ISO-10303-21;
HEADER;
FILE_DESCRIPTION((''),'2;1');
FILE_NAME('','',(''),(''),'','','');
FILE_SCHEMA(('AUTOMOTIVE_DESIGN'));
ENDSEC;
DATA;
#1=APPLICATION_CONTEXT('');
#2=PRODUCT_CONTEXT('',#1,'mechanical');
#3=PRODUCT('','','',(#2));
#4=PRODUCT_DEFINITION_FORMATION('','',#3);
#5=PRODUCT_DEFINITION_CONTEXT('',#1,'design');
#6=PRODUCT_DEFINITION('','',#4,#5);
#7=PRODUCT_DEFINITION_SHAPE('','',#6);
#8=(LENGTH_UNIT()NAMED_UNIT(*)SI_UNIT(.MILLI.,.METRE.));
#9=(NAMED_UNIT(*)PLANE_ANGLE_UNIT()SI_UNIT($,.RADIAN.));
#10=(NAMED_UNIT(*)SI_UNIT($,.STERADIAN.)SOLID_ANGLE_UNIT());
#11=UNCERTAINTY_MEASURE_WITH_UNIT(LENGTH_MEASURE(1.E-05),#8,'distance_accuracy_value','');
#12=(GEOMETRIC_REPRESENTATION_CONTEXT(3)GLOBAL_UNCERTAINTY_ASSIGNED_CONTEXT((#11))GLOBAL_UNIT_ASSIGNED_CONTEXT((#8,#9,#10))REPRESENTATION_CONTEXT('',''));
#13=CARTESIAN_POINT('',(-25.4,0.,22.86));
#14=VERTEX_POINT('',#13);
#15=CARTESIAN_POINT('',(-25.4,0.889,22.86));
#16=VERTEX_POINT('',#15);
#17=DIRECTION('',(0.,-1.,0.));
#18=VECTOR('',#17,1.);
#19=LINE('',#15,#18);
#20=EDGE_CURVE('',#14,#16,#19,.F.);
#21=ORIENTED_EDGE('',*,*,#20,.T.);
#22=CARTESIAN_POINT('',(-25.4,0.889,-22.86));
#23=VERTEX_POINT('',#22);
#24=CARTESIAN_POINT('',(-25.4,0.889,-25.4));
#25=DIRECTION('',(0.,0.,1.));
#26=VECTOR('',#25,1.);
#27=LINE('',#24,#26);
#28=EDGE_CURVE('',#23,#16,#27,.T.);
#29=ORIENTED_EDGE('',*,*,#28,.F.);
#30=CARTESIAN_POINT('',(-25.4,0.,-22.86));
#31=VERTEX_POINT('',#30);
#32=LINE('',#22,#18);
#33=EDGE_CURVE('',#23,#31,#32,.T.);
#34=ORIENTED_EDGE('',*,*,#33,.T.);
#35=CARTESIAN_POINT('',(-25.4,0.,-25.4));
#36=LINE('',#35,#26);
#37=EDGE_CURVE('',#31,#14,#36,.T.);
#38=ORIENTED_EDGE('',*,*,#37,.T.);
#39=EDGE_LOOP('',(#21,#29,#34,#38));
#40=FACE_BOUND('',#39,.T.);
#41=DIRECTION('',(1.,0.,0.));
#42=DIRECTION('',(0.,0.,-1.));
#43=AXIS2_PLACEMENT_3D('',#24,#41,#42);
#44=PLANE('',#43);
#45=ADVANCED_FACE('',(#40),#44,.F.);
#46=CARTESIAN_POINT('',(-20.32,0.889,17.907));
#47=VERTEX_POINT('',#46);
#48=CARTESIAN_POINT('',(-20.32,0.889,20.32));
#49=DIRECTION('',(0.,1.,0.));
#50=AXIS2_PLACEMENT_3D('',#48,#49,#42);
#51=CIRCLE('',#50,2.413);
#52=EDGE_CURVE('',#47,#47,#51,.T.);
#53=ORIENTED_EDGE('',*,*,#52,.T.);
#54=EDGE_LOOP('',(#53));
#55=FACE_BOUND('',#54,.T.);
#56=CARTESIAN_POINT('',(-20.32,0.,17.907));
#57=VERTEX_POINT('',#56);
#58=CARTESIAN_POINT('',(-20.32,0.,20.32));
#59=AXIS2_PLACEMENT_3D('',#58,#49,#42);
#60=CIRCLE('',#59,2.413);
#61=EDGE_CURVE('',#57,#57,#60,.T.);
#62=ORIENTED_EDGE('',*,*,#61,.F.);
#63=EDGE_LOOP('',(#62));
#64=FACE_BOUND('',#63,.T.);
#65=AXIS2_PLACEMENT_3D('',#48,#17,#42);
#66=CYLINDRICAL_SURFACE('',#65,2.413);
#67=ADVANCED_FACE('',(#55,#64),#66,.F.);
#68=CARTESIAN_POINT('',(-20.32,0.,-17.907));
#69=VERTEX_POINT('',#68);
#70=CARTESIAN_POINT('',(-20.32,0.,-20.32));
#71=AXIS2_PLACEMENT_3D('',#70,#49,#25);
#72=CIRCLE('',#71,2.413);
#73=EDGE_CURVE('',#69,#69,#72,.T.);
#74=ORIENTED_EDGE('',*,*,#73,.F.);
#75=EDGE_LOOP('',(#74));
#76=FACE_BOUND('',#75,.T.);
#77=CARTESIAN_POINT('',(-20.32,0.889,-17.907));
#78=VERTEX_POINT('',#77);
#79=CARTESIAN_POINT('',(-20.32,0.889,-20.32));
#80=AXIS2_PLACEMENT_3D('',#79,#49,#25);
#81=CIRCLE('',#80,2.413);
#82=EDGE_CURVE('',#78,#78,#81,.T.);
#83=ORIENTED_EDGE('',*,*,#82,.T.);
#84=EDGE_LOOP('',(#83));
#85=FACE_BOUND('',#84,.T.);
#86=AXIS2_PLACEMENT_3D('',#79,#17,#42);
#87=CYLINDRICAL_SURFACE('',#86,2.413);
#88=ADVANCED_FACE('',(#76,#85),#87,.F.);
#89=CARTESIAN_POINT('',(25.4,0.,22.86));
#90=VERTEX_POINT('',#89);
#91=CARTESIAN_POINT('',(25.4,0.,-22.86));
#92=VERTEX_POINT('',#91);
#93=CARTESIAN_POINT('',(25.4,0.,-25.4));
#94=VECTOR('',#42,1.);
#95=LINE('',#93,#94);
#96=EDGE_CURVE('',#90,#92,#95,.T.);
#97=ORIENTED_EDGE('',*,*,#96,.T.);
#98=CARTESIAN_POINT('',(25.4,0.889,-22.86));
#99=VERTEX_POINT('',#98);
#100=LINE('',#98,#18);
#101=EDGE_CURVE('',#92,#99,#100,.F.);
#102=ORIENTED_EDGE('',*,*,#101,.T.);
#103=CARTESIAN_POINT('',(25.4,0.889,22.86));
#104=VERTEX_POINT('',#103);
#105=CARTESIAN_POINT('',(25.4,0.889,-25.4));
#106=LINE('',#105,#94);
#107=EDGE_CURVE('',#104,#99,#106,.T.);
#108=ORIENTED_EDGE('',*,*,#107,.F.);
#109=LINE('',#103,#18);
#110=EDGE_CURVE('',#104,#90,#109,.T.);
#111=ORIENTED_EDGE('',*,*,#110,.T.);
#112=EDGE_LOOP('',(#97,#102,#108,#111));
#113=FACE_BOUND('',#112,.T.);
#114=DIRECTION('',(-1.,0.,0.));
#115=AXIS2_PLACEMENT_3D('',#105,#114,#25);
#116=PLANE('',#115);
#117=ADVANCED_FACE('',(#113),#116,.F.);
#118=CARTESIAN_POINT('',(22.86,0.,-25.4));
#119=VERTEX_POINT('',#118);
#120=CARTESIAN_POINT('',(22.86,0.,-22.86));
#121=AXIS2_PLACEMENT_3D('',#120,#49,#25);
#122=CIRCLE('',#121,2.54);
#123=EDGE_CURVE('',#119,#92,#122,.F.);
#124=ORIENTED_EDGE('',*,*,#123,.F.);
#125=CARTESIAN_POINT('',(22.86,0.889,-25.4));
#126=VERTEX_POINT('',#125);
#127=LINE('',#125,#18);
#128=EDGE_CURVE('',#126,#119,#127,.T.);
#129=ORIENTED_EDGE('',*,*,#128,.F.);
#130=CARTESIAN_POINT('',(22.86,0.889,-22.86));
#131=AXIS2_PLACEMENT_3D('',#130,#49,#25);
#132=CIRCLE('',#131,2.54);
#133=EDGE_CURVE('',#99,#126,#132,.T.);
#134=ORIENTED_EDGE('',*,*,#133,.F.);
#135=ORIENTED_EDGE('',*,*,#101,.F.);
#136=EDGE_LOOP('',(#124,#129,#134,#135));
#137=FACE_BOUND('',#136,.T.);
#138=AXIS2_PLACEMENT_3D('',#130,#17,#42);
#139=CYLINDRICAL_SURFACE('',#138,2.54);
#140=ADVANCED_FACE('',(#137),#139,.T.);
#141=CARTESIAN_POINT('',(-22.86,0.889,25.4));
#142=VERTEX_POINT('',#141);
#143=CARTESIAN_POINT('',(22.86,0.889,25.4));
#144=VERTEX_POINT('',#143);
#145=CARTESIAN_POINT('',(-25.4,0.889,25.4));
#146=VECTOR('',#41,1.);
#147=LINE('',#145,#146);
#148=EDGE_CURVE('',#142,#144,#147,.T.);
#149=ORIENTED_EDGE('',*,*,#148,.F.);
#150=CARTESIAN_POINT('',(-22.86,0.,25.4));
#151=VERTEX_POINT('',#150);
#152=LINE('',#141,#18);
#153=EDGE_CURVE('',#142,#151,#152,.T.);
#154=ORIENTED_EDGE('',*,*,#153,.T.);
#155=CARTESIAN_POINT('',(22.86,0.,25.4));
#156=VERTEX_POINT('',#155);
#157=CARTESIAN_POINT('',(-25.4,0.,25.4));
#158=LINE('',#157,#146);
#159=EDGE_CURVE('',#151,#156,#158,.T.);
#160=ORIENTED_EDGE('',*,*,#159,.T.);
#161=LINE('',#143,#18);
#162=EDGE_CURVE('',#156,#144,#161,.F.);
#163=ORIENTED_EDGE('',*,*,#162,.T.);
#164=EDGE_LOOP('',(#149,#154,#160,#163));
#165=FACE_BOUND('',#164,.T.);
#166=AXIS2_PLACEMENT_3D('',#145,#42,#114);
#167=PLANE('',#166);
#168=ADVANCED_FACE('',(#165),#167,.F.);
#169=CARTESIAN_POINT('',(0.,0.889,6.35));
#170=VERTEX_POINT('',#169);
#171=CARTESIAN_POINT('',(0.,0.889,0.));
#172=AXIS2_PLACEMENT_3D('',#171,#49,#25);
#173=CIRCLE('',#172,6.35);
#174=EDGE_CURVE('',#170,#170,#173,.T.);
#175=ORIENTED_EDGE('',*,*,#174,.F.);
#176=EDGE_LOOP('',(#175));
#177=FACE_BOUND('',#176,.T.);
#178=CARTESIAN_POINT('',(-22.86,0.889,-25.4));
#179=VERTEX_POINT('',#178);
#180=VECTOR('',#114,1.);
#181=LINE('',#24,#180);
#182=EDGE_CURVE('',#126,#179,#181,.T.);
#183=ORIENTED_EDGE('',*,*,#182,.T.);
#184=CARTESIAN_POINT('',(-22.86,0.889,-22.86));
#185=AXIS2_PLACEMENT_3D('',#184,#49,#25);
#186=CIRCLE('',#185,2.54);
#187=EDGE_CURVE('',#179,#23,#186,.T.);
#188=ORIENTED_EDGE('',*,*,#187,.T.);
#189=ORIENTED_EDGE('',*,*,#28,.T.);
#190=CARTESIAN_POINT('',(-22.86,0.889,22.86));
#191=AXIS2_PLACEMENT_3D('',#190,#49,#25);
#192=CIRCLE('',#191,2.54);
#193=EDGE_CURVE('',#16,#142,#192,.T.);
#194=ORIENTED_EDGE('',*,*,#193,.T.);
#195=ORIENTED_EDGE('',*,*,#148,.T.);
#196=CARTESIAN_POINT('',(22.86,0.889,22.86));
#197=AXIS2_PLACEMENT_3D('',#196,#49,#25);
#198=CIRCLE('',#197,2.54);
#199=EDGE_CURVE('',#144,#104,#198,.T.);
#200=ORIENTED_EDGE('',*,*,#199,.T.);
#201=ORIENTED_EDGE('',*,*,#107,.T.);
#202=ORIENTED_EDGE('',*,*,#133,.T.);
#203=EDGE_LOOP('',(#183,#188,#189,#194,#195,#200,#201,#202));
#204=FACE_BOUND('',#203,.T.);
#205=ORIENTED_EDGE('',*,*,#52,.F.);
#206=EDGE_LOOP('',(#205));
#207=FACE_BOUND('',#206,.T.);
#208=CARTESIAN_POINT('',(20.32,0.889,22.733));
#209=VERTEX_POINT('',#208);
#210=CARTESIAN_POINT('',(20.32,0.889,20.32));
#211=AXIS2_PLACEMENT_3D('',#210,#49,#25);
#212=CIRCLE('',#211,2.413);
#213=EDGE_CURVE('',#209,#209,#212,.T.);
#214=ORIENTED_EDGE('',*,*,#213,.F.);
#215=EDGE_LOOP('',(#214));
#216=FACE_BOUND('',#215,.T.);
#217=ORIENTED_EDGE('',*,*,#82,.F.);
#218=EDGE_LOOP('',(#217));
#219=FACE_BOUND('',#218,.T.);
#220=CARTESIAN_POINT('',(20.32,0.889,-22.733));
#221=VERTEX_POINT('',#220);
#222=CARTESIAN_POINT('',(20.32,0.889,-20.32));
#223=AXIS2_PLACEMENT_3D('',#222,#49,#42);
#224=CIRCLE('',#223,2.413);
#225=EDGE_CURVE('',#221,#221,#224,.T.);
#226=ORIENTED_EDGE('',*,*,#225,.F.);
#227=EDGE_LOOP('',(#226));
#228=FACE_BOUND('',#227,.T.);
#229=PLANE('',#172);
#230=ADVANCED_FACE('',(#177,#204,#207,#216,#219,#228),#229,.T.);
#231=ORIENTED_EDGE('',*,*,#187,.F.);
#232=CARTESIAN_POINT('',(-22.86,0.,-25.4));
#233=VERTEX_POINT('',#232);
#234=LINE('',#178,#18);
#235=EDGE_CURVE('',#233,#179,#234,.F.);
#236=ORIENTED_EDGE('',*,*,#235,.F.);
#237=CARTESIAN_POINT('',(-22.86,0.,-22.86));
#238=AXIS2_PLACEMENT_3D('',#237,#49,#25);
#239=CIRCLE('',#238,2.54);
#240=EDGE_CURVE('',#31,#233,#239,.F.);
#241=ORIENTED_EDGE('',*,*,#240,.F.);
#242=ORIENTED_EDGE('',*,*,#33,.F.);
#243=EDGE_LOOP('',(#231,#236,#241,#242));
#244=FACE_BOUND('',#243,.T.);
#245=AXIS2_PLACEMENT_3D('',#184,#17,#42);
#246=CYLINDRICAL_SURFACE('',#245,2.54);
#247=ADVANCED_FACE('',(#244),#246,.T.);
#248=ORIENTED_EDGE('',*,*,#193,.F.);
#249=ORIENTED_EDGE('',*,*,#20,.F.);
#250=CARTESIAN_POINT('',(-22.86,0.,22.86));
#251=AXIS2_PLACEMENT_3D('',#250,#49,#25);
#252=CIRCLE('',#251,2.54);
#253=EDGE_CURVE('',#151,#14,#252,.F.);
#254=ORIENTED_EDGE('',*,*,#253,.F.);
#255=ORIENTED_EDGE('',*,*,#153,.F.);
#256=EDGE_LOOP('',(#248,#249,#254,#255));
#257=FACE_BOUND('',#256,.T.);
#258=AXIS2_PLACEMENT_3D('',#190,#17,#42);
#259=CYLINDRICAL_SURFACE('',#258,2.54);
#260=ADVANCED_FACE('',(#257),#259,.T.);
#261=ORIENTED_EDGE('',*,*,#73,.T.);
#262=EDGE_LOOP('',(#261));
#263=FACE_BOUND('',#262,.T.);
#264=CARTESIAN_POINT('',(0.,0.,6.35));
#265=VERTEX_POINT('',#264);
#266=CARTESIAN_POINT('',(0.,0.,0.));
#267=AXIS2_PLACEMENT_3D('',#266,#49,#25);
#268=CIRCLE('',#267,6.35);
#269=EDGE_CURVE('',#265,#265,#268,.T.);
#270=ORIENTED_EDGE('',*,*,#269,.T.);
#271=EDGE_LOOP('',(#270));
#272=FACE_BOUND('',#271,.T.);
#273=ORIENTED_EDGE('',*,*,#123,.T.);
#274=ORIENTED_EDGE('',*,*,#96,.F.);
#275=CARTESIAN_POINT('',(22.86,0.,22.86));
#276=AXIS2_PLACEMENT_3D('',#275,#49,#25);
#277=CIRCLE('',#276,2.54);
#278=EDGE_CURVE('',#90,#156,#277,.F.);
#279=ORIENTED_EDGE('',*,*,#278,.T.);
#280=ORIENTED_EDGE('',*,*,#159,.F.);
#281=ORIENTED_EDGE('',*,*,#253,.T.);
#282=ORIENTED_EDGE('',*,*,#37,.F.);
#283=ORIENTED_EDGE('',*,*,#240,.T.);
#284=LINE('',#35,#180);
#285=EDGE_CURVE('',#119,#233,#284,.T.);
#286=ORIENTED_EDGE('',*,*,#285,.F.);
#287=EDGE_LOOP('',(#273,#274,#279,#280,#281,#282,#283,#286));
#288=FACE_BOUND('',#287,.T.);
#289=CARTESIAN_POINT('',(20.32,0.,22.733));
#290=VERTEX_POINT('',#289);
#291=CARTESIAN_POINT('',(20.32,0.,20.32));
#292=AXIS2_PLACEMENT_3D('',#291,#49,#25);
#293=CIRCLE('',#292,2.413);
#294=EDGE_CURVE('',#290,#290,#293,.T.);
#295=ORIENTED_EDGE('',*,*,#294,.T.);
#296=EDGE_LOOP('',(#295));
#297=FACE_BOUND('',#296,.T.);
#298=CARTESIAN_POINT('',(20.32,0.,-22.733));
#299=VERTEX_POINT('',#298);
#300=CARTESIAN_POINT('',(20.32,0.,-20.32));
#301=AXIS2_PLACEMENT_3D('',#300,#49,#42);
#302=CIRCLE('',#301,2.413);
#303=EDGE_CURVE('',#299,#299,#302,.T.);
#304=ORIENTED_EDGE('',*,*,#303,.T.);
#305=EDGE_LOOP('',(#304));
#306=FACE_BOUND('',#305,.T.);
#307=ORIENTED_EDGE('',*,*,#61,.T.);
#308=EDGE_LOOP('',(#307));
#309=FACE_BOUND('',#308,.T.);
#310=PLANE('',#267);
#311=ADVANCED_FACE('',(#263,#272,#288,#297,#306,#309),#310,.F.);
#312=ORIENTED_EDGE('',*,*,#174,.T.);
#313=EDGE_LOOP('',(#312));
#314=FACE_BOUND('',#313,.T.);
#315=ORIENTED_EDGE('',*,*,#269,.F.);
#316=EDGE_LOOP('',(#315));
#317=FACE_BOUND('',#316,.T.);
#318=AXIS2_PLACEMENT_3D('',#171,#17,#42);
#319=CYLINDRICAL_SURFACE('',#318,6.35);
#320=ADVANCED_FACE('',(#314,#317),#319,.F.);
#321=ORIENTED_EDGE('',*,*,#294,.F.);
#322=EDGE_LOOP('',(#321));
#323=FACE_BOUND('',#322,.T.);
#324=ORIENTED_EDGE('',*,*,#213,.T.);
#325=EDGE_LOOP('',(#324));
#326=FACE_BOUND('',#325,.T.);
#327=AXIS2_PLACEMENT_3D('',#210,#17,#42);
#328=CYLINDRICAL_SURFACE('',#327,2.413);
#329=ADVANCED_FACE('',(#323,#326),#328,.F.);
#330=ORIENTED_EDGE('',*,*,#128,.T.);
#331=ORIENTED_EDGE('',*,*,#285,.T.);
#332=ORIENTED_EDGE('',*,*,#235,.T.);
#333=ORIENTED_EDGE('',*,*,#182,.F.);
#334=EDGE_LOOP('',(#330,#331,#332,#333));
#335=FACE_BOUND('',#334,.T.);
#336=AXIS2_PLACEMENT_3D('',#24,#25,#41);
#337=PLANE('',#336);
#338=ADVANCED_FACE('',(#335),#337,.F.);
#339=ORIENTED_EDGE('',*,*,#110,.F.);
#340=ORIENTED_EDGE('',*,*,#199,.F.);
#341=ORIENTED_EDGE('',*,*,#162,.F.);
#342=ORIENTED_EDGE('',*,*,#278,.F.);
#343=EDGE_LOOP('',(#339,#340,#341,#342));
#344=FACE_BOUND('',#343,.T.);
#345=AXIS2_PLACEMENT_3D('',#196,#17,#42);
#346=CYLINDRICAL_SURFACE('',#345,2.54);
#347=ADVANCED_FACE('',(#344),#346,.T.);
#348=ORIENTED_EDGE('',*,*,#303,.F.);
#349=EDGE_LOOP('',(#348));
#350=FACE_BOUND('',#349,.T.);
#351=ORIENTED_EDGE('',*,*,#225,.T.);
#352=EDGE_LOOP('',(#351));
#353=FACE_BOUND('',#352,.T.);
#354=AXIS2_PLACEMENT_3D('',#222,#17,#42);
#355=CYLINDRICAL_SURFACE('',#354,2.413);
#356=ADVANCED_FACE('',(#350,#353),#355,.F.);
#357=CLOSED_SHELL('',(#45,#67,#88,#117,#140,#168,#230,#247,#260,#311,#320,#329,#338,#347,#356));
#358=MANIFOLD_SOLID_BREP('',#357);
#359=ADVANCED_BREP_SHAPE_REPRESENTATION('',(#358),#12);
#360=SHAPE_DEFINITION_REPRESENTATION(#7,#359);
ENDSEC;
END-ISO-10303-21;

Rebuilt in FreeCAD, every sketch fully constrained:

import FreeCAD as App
import Part
import Sketcher

V = App.Vector
Q = App.Units.Quantity


def edges_at(feature, points):
    """Names of the edges that pass closest to the given points."""
    edges = feature.Shape.Edges
    near = lambda p: min(range(len(edges)), key=lambda i: edges[i].distToShape(Part.Vertex(*p))[0])
    return sorted({f"Edge{near(p) + 1}" for p in points})

doc = App.newDocument("Part")
body = doc.addObject("PartDesign::Body", "Body")

# Sketch on XZ plane
sketch1 = body.newObject("Sketcher::SketchObject", "Sketch")
sketch1.AttachmentSupport = (doc.getObject("XZ_Plane"), [""])
sketch1.MapMode = "FlatFace"
sketch1.addGeometry(Part.LineSegment(V(-25.4, -25.4, 0), V(-25.4, 25.4, 0)), False)
sketch1.addGeometry(Part.LineSegment(V(-25.4, 25.4, 0), V(25.4, 25.4, 0)), False)
sketch1.addGeometry(Part.LineSegment(V(25.4, 25.4, 0), V(25.4, -25.4, 0)), False)
sketch1.addGeometry(Part.LineSegment(V(25.4, -25.4, 0), V(-25.4, -25.4, 0)), False)
sketch1.addGeometry(Part.Circle(V(-20.3, 20.3, 0), V(0, 0, 1), 2.4), False)
sketch1.addGeometry(Part.Circle(V(20.3, 20.3, 0), V(0, 0, 1), 2.4), False)
sketch1.addGeometry(Part.Circle(V(-20.3, -20.3, 0), V(0, 0, 1), 2.4), False)
sketch1.addGeometry(Part.Circle(V(0, 0, 0), V(0, 0, 1), 6.3), False)
sketch1.addGeometry(Part.Circle(V(20.3, -20.3, 0), V(0, 0, 1), 2.4), False)
sketch1.addConstraint(Sketcher.Constraint("Coincident", 0, 2, 1, 1))
sketch1.addConstraint(Sketcher.Constraint("Coincident", 1, 2, 2, 1))
sketch1.addConstraint(Sketcher.Constraint("Coincident", 2, 2, 3, 1))
sketch1.addConstraint(Sketcher.Constraint("Coincident", 3, 2, 0, 1))
sketch1.addConstraint(Sketcher.Constraint("Vertical", 0))
sketch1.addConstraint(Sketcher.Constraint("Horizontal", 1))
sketch1.addConstraint(Sketcher.Constraint("Vertical", 2))
sketch1.addConstraint(Sketcher.Constraint("Horizontal", 3))
sketch1.addConstraint(Sketcher.Constraint("Coincident", 7, 3, -1, 1))
sketch1.addConstraint(Sketcher.Constraint("Equal", 4, 5))
sketch1.addConstraint(Sketcher.Constraint("Equal", 5, 6))
sketch1.addConstraint(Sketcher.Constraint("Equal", 6, 8))
sketch1.addConstraint(Sketcher.Constraint("Symmetric", 5, 3, 6, 3, -1, 1))
sketch1.addConstraint(Sketcher.Constraint("Symmetric", 4, 3, 8, 3, -1, 1))
sketch1.addConstraint(Sketcher.Constraint("Symmetric", 0, 2, 2, 2, -1, 1))
sketch1.addConstraint(Sketcher.Constraint("Symmetric", 4, 3, 5, 3, -2))
sketch1.addConstraint(Sketcher.Constraint("Equal", 3, 0))
sketch1.addConstraint(Sketcher.Constraint("Diameter", 7, Q("0.5 in")))
sketch1.addConstraint(Sketcher.Constraint("Diameter", 4, Q("0.19 in")))
sketch1.addConstraint(Sketcher.Constraint("DistanceX", 1, 1, 1, 2, Q("2 in")))
sketch1.addConstraint(Sketcher.Constraint("DistanceX", 4, 3, -1, 1, Q("0.8 in")))
sketch1.addConstraint(Sketcher.Constraint("DistanceY", -1, 1, 4, 3, Q("0.8 in")))
pad1 = body.newObject("PartDesign::Pad", "Pad")
pad1.Profile = sketch1
pad1.Length = Q("0.035 in")
pad1.Reversed = True
doc.recompute()

fillet = body.newObject("PartDesign::Fillet", "Fillet")
fillet.Base = (pad1, edges_at(pad1, [
    (-25.4, 0.445, -25.4),
    (25.4, 0.445, -25.4),
    (25.4, 0.445, 25.4),
    (-25.4, 0.445, 25.4),
]))
fillet.Radius = Q("0.1 in")

doc.recompute()
